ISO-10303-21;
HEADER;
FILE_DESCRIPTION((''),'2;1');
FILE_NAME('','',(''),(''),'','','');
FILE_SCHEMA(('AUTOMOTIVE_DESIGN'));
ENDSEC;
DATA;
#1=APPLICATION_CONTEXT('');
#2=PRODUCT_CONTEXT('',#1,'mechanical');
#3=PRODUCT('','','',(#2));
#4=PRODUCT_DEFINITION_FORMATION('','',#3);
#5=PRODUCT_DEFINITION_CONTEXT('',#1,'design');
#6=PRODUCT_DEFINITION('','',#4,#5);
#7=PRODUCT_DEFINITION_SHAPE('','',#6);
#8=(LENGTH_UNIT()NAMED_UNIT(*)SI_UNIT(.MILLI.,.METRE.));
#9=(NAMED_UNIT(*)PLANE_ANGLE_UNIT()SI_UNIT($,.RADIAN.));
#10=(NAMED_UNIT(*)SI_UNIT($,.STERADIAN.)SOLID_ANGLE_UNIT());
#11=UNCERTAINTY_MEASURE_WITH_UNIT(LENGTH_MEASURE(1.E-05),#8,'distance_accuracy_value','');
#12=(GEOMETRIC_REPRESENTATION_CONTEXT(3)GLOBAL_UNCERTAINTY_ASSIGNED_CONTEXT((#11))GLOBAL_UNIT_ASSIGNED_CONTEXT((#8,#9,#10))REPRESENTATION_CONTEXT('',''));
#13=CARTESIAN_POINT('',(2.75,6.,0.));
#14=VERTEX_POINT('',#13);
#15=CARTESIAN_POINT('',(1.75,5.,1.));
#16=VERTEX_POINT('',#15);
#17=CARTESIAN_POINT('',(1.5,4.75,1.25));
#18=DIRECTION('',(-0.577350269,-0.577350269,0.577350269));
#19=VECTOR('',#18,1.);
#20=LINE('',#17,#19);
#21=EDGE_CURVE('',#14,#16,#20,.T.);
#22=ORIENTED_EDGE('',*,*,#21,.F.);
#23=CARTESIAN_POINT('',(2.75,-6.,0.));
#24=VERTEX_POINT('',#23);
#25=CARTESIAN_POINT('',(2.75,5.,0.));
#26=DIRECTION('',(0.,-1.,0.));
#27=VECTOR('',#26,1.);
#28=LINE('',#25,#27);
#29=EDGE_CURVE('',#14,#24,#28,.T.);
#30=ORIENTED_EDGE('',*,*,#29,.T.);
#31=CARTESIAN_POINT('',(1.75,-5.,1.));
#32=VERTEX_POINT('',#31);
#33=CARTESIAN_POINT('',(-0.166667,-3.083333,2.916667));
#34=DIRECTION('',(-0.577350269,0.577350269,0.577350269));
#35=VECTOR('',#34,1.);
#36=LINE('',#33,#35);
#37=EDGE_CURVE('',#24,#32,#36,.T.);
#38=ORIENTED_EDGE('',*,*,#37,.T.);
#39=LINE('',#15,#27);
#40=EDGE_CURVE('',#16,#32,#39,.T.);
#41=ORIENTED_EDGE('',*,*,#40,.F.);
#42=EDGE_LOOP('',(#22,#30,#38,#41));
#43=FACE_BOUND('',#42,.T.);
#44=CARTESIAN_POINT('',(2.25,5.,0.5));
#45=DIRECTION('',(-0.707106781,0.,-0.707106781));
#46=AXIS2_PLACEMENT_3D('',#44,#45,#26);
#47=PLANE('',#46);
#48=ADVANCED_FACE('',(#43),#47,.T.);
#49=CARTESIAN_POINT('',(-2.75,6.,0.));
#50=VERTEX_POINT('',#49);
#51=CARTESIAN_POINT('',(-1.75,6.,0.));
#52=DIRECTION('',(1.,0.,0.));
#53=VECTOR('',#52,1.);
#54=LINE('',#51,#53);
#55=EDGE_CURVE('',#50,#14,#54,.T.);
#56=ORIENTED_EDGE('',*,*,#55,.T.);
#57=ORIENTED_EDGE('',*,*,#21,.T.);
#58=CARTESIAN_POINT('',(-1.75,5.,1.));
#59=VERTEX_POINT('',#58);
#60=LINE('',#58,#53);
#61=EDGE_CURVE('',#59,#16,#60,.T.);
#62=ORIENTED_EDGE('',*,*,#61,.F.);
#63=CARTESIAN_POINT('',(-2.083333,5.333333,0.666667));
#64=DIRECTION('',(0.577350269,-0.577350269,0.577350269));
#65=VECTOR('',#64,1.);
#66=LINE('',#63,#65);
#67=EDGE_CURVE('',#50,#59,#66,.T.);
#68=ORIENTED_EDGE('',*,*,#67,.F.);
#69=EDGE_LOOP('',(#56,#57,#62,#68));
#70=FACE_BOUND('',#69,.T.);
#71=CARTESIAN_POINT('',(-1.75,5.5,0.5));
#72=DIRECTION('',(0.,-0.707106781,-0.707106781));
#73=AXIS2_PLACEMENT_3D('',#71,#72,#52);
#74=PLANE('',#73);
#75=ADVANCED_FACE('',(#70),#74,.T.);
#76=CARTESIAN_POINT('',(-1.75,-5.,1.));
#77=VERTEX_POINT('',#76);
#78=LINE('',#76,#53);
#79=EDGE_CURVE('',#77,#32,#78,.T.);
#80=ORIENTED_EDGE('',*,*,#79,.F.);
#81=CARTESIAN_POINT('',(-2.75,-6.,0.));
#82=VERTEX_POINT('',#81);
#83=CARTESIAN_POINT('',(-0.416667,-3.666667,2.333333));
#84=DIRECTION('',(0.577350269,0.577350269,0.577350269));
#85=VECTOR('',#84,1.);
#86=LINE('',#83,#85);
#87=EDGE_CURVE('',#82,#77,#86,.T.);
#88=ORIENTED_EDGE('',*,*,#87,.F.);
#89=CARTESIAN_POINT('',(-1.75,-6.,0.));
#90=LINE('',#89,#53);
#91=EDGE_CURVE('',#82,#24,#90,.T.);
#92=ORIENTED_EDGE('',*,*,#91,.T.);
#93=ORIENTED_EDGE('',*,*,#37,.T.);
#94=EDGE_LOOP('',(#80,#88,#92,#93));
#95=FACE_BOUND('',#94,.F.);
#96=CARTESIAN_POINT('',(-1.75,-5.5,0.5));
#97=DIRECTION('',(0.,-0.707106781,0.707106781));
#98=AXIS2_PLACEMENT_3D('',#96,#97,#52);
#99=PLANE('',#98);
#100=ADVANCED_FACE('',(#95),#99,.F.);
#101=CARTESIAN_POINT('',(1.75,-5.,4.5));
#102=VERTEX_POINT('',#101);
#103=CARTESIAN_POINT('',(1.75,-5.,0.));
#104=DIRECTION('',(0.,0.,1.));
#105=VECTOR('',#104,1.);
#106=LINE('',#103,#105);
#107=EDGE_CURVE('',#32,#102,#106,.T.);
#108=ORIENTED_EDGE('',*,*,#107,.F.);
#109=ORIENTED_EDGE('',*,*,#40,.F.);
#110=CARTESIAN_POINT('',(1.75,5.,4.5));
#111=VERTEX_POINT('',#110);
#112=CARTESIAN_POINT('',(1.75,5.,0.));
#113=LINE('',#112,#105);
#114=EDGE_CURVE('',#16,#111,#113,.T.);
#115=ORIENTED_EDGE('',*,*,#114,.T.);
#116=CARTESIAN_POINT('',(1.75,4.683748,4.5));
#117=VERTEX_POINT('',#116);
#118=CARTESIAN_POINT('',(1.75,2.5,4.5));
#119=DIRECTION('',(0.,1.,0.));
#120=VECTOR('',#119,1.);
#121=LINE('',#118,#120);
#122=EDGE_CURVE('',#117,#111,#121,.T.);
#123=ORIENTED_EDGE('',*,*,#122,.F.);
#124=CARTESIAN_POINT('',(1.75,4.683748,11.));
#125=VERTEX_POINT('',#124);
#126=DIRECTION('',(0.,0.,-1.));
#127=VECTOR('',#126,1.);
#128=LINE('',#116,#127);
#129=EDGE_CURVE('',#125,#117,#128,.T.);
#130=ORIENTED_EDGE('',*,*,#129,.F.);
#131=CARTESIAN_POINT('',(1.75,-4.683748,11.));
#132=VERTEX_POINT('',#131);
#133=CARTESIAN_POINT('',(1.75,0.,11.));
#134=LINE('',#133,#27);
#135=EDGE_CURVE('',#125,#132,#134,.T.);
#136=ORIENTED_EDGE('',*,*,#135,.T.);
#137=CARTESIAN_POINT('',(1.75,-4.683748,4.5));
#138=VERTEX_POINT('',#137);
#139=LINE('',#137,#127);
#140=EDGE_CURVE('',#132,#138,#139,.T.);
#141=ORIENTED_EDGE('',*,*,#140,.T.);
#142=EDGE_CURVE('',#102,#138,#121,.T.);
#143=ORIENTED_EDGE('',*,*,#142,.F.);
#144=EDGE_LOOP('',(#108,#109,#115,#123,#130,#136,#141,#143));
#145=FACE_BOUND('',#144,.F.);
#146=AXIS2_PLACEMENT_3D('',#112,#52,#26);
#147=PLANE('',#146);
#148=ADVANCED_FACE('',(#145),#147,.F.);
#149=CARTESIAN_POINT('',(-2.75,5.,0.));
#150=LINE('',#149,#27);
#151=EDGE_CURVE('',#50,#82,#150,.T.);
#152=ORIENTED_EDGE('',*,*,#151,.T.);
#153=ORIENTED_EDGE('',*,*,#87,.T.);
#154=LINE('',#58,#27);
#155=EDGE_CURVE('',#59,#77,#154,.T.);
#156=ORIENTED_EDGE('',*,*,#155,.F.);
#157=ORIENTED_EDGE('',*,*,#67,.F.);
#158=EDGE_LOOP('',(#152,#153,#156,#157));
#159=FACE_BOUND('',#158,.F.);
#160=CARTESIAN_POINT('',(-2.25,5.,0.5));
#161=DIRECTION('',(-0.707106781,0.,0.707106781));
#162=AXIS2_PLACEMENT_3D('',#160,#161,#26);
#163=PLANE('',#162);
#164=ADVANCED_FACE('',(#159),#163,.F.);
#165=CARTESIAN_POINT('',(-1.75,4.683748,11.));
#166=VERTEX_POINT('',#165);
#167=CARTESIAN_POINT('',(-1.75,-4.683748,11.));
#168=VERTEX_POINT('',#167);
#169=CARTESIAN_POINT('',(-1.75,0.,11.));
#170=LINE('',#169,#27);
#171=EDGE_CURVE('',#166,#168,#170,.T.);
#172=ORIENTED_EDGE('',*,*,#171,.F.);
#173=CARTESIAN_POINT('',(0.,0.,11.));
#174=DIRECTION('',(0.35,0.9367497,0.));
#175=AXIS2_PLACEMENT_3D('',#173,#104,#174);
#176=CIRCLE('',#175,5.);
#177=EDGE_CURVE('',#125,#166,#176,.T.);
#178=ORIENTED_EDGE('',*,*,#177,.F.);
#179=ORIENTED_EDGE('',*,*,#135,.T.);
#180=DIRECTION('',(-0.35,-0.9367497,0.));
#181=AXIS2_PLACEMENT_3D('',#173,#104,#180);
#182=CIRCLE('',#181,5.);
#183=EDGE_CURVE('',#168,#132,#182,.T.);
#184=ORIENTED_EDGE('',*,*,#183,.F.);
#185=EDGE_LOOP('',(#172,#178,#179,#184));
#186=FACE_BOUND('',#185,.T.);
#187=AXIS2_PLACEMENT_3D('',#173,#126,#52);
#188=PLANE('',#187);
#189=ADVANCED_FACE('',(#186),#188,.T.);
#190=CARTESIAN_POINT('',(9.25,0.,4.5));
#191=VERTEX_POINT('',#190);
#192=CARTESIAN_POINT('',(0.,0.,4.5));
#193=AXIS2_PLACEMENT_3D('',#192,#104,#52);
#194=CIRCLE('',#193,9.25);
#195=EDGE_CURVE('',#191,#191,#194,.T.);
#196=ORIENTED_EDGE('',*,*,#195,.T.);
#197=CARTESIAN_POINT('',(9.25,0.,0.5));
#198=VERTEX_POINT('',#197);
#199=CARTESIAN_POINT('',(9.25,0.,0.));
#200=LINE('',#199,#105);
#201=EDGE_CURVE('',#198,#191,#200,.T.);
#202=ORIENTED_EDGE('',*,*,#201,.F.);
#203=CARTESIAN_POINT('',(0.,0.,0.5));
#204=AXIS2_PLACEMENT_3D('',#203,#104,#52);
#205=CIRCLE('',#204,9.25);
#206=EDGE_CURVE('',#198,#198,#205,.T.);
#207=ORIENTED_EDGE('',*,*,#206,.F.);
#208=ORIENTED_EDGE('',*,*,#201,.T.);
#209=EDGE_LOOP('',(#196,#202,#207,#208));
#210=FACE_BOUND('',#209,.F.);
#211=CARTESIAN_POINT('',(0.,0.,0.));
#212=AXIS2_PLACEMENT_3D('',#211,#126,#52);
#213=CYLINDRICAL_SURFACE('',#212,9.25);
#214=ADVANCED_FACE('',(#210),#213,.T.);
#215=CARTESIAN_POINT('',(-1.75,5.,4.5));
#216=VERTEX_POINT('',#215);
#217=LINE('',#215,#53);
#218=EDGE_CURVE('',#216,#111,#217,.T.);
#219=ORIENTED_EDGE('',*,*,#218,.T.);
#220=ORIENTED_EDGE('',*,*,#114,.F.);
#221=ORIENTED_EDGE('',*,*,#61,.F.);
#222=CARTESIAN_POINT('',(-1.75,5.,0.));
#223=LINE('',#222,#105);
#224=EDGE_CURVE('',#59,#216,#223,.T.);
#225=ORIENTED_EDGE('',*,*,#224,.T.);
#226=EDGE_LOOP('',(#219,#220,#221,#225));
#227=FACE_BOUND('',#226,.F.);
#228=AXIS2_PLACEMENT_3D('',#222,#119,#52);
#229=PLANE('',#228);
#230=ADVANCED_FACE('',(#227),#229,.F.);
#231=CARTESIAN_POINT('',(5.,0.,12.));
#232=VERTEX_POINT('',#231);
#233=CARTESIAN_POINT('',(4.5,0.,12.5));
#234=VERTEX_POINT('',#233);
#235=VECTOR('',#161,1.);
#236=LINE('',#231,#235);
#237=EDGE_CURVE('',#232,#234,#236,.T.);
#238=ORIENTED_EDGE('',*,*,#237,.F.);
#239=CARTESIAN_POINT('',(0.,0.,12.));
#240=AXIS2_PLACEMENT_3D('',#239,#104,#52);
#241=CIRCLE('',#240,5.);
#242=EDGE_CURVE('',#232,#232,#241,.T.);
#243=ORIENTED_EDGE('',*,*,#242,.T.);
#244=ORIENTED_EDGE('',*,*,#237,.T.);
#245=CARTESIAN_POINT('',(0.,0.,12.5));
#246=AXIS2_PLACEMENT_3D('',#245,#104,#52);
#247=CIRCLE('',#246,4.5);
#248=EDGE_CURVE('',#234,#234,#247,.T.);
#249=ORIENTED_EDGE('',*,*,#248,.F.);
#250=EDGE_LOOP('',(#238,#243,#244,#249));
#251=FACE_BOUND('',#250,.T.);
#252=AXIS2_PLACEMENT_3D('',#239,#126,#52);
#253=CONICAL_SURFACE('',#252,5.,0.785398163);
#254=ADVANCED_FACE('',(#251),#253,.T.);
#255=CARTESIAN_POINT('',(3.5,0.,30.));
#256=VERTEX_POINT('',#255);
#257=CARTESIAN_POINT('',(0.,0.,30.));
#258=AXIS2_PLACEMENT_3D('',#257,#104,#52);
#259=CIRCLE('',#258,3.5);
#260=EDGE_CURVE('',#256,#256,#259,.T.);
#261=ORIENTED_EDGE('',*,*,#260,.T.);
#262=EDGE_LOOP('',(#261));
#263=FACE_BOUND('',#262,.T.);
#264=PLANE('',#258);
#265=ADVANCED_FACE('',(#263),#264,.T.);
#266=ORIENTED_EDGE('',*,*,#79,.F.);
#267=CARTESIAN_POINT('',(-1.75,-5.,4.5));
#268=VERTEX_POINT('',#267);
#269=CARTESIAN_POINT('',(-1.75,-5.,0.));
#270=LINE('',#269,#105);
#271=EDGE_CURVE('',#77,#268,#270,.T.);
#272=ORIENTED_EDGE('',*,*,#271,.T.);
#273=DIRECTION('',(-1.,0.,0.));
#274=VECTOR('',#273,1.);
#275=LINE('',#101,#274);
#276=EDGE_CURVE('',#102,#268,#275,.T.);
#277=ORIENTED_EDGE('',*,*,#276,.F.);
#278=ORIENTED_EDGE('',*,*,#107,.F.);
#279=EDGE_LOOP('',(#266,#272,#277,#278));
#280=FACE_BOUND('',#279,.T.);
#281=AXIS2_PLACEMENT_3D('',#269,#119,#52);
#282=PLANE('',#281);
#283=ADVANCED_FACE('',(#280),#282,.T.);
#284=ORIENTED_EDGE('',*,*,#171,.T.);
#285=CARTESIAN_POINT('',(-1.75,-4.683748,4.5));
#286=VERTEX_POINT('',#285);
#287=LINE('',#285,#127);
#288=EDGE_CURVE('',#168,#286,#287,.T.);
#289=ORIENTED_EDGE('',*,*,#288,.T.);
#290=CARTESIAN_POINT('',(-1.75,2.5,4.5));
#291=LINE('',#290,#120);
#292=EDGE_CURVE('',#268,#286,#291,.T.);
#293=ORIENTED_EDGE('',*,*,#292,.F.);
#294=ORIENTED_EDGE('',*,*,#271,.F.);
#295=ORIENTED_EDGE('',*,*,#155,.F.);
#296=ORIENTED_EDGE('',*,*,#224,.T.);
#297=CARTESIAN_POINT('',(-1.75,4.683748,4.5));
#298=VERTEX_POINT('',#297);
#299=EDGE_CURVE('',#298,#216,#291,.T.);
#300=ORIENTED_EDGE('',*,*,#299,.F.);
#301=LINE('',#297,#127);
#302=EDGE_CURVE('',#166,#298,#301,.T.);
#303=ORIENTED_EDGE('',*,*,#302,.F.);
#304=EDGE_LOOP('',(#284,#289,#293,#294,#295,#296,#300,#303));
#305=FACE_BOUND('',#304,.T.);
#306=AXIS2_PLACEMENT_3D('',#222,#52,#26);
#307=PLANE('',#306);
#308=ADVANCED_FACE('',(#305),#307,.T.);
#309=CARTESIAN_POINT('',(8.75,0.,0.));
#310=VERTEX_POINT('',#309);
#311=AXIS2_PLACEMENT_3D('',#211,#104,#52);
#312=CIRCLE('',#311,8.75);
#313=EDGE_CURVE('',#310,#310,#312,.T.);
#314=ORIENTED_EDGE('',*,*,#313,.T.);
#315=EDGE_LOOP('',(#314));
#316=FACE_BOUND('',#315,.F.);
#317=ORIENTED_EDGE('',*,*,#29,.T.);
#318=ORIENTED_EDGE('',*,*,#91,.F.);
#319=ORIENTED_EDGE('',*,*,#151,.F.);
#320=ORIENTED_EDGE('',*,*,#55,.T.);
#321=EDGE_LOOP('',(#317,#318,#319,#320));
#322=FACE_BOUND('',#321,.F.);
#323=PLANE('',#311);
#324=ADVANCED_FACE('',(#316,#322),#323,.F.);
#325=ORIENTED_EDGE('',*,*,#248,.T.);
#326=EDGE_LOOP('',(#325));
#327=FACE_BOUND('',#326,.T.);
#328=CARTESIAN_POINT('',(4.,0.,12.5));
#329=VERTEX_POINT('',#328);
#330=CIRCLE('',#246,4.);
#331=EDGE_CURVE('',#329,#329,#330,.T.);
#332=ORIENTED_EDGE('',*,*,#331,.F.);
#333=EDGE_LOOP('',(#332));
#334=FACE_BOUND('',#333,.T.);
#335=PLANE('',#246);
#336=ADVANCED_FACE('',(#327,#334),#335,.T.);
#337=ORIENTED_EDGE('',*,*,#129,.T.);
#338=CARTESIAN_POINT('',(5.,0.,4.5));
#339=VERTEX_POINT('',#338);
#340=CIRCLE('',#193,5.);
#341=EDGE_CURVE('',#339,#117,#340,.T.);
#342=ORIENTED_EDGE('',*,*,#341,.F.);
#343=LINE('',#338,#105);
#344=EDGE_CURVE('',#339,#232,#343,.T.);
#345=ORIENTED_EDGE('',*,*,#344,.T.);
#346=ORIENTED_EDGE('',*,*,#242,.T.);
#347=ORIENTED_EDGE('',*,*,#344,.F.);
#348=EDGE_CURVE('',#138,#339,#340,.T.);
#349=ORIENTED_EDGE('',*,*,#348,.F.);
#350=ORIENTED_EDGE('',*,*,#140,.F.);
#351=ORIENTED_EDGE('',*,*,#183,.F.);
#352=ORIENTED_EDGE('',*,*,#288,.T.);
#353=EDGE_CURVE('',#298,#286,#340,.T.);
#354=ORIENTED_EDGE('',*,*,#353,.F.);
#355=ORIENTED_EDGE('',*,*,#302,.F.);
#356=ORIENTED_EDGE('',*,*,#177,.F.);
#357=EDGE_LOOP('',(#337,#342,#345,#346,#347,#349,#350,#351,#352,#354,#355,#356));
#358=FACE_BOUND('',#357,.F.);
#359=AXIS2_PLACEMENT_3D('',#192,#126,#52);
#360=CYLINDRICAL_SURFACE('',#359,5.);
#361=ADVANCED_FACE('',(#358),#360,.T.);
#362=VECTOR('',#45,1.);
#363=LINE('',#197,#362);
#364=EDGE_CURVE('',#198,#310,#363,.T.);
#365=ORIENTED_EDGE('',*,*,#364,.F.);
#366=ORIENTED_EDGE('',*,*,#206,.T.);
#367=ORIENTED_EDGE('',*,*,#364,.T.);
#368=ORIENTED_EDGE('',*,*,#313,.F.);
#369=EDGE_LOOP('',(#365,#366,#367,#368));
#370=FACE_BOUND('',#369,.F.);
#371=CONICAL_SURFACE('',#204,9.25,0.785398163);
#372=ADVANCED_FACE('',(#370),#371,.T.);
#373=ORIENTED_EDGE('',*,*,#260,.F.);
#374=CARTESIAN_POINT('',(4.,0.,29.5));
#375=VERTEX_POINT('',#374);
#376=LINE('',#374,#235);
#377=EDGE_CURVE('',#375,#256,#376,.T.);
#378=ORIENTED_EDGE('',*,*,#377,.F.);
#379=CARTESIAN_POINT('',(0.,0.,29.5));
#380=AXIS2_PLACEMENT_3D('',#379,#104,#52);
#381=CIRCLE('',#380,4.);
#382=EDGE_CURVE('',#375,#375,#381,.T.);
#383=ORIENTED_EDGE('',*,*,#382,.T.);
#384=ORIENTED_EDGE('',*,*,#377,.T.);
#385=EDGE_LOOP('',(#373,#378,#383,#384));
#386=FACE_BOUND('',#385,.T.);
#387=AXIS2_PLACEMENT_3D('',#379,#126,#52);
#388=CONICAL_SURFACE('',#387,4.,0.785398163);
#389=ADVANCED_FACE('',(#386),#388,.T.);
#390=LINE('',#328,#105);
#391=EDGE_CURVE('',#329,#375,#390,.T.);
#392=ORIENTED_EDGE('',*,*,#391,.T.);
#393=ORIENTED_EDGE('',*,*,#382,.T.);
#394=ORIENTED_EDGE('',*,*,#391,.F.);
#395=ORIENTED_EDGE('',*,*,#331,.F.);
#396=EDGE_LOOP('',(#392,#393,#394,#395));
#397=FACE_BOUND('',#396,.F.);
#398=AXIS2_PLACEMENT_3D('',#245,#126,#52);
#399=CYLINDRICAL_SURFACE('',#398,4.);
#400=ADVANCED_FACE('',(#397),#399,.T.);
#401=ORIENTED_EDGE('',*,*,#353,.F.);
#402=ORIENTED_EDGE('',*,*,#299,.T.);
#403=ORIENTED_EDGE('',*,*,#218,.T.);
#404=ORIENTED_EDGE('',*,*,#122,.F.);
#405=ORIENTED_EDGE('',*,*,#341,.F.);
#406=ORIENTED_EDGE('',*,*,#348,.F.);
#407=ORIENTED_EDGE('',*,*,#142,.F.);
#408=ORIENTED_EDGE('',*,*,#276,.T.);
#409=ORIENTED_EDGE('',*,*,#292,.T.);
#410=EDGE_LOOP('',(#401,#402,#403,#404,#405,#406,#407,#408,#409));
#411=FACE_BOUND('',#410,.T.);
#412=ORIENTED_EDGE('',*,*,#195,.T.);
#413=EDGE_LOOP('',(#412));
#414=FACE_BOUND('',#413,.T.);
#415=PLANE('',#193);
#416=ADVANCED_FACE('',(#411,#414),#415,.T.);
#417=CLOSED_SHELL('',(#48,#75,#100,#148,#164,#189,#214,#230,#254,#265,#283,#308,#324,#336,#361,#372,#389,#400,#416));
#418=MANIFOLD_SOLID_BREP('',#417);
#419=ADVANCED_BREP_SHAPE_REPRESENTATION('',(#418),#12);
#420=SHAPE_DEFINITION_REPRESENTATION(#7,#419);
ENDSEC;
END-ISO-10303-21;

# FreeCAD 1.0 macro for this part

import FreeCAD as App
import Part
import Sketcher

V = App.Vector
Q = App.Units.Quantity


def edges_at(feature, points):
    """Names of the edges that pass closest to the given points."""
    edges = feature.Shape.Edges
    near = lambda p: min(range(len(edges)), key=lambda i: edges[i].distToShape(Part.Vertex(*p))[0])
    return sorted({f"Edge{near(p) + 1}" for p in points})

doc = App.newDocument("Part")
body = doc.addObject("PartDesign::Body", "Body")

sketch1 = body.newObject("Sketcher::SketchObject", "Sketch")
sketch1.AttachmentSupport = (doc.getObject("XY_Plane"), [""])
sketch1.MapMode = "FlatFace"
sketch1.addGeometry(Part.Circle(V(0, 0, 0), V(0, 0, 1), 9.25), False)
sketch1.addConstraint([
    Sketcher.Constraint("Coincident", 0, 3, -1, 1),
    Sketcher.Constraint("Diameter", 0, Q("18.5 mm")),
])
pad1 = body.newObject("PartDesign::Pad", "Pad")
pad1.Profile = sketch1
pad1.Length = 4.5

sketch2 = body.newObject("Sketcher::SketchObject", "Sketch001")
sketch2.AttachmentSupport = (doc.getObject("XY_Plane"), [""])
sketch2.MapMode = "FlatFace"
sketch2.AttachmentOffset = App.Placement(V(0, 0, 4.5), App.Rotation())
sketch2.addGeometry(Part.Circle(V(0, 0, 0), V(0, 0, 1), 5), False)
sketch2.addConstraint([
    Sketcher.Constraint("Coincident", 0, 3, -1, 1),
    Sketcher.Constraint("Diameter", 0, Q("10 mm")),
])
pad2 = body.newObject("PartDesign::Pad", "Pad001")
pad2.Profile = sketch2
pad2.Length = 8

sketch3 = body.newObject("Sketcher::SketchObject", "Sketch002")
sketch3.AttachmentSupport = (doc.getObject("XY_Plane"), [""])
sketch3.MapMode = "FlatFace"
sketch3.AttachmentOffset = App.Placement(V(0, 0, 12.5), App.Rotation())
sketch3.addGeometry(Part.Circle(V(0, 0, 0), V(0, 0, 1), 4), False)
sketch3.addConstraint([
    Sketcher.Constraint("Coincident", 0, 3, -1, 1),
    Sketcher.Constraint("Diameter", 0, Q("8 mm")),
])
pad3 = body.newObject("PartDesign::Pad", "Pad002")
pad3.Profile = sketch3
pad3.Length = 17.5

sketch4 = body.newObject("Sketcher::SketchObject", "Sketch003")
sketch4.AttachmentSupport = (doc.getObject("XY_Plane"), [""])
sketch4.MapMode = "FlatFace"
sketch4.addGeometry([
    Part.LineSegment(V(-1.75, -5, 0), V(-1.75, 5, 0)),
    Part.LineSegment(V(-1.75, 5, 0), V(1.75, 5, 0)),
    Part.LineSegment(V(1.75, 5, 0), V(1.75, -5, 0)),
    Part.LineSegment(V(1.75, -5, 0), V(-1.75, -5, 0)),
], False)
sketch4.addConstraint([
    Sketcher.Constraint("Coincident", 0, 2, 1, 1),
    Sketcher.Constraint("Coincident", 1, 2, 2, 1),
    Sketcher.Constraint("Coincident", 2, 2, 3, 1),
    Sketcher.Constraint("Coincident", 3, 2, 0, 1),
    Sketcher.Constraint("Vertical", 0),
    Sketcher.Constraint("Horizontal", 1),
    Sketcher.Constraint("Vertical", 2),
    Sketcher.Constraint("Horizontal", 3),
    Sketcher.Constraint("Symmetric", 0, 2, 2, 2, -1, 1),
    Sketcher.Constraint("DistanceY", 0, 1, 0, 2, Q("10 mm")),
    Sketcher.Constraint("DistanceX", 1, 1, 1, 2, Q("3.5 mm")),
])
pocket1 = body.newObject("PartDesign::Pocket", "Pocket")
pocket1.Profile = sketch4
pocket1.Length = 11
pocket1.Reversed = True
doc.recompute()

chamfer = body.newObject("PartDesign::Chamfer", "Chamfer")
chamfer.Base = (pocket1, edges_at(pocket1, [(-4, 0, 30), (-5, 0, 12.5), (-9.25, 0, 0)]))
chamfer.Size = 0.5
doc.recompute()

chamfer2 = body.newObject("PartDesign::Chamfer", "Chamfer001")
chamfer2.Base = (chamfer, edges_at(chamfer, [
    (0, -5, 0),
    (1.75, 0, 0),
    (0, 5, 0),
    (-1.75, 0, 0),
]))
chamfer2.Size = 1

doc.recompute()
